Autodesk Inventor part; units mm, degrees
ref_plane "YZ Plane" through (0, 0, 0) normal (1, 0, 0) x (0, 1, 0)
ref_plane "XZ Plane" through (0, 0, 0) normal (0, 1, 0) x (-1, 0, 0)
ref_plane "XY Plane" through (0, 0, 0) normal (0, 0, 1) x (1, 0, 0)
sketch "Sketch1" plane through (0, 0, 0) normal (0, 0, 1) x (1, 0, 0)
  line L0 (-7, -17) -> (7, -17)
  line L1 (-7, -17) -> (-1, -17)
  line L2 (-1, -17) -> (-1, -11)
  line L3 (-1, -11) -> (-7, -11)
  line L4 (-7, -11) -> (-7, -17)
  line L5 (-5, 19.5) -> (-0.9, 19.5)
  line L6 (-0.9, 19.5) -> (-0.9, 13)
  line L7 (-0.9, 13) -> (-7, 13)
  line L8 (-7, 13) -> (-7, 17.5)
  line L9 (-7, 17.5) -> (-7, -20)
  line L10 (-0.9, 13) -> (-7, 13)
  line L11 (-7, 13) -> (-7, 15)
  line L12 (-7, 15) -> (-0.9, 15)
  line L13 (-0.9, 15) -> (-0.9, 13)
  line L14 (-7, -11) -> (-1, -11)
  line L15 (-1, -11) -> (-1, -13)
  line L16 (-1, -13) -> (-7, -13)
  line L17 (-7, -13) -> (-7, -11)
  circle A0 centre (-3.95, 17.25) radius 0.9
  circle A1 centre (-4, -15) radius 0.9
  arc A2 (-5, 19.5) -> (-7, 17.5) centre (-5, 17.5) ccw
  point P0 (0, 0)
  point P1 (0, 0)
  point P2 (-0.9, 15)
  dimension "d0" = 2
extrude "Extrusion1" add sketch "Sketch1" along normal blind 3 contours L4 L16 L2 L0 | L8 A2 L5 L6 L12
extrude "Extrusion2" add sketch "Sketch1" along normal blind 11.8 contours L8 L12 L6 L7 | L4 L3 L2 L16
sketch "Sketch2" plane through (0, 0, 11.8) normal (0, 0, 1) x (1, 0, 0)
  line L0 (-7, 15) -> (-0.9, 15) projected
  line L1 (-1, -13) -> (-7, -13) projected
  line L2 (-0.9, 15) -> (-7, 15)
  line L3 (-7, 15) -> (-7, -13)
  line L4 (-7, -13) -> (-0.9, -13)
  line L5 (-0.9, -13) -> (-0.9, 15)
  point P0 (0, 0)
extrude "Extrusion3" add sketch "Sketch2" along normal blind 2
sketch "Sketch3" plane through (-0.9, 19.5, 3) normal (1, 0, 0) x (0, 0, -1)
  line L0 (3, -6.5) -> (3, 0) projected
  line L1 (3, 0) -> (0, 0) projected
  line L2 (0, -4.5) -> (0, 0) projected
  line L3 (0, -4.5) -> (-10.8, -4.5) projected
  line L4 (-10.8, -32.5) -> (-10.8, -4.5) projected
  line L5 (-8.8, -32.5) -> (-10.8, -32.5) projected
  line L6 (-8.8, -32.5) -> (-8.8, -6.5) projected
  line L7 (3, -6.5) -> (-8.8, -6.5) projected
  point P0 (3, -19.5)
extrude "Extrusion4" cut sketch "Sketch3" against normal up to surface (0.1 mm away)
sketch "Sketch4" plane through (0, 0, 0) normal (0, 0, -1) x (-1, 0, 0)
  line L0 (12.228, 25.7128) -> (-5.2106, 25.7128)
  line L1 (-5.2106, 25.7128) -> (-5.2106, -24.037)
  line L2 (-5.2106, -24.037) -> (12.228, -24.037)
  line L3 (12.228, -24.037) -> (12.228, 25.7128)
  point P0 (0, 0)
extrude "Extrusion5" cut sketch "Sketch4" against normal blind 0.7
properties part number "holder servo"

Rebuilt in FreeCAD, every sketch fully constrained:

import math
import FreeCAD as App
import Part
import Sketcher
Q = App.Units.Quantity

doc = App.newDocument("Part")
params = doc.addObject("Spreadsheet::Sheet", "Params")
for row, (alias, value) in enumerate([
    ("sketch1_radius", "2 mm"),
    ("sketch1_diameter", "1.8 mm"),
    ("sketch1_width", "6 mm"),
    ("sketch1_width2", "6.1 mm"),
    ("sketch1_height", "2.5 mm"),
    ("pad1_length", "3 mm"),
    ("sketch2_height", "2 mm"),
    ("sketch2_width", "6 mm"),
    ("sketch2_width2", "6.1 mm"),
    ("pad2_length", "11.8 mm"),
    ("sketch3_height", "28 mm"),
    ("sketch3_width", "6.1 mm"),
    ("pad3_length", "2 mm"),
    ("sketch4_width", "28 mm"),
    ("sketch4_width2", "26 mm"),
    ("sketch4_height", "3 mm"),
    ("sketch4_height2", "2 mm"),
    ("sketch4_width3", "6.5 mm"),
    ("pocket1_length", "0.1 mm"),
    ("pocket2_length", "0.7 mm"),
], start=1):
    params.set(f"A{row}", alias)
    params.set(f"B{row}", "=" + value)
    params.setAlias(f"B{row}", alias)

body = doc.addObject("PartDesign::Body", "Body")
body.AllowCompound = True

sketch1 = body.newObject("Sketcher::SketchObject", "Sketch")
sketch1.AttachmentSupport = (doc.getObject("XY_Plane"), [""])
sketch1.MapMode = "FlatFace"
sketch1.addGeometry(Part.LineSegment(App.Vector(-7, -13, 0), App.Vector(-7, -17, 0)), False)
sketch1.addGeometry(Part.LineSegment(App.Vector(-7, -17, 0), App.Vector(-1, -17, 0)), False)
sketch1.addGeometry(Part.LineSegment(App.Vector(-1, -17, 0), App.Vector(-1, -13, 0)), False)
sketch1.addGeometry(Part.LineSegment(App.Vector(-1, -13, 0), App.Vector(-7, -13, 0)), False)
sketch1.addGeometry(Part.Circle(App.Vector(-4, -15, 0), App.Vector(0, 0, 1), 0.9), False)
sketch1.addGeometry(Part.LineSegment(App.Vector(-7, 17.5, 0), App.Vector(-7, 15, 0)), False)
sketch1.addGeometry(Part.LineSegment(App.Vector(-7, 15, 0), App.Vector(-0.9, 15, 0)), False)
sketch1.addGeometry(Part.LineSegment(App.Vector(-0.9, 15, 0), App.Vector(-0.9, 19.5, 0)), False)
sketch1.addGeometry(Part.LineSegment(App.Vector(-0.9, 19.5, 0), App.Vector(-5, 19.5, 0)), False)
sketch1.addGeometry(Part.ArcOfCircle(Part.Circle(App.Vector(-5, 17.5, 0), App.Vector(0, 0, 1), 2), math.radians(90), math.radians(180)), False)
sketch1.addGeometry(Part.Circle(App.Vector(-3.95, 17.25, 0), App.Vector(0, 0, 1), 0.9), False)
sketch1.addConstraint(Sketcher.Constraint("Coincident", 0, 2, 1, 1))
sketch1.addConstraint(Sketcher.Constraint("Coincident", 1, 2, 2, 1))
sketch1.addConstraint(Sketcher.Constraint("Coincident", 2, 2, 3, 1))
sketch1.addConstraint(Sketcher.Constraint("Coincident", 3, 2, 0, 1))
sketch1.addConstraint(Sketcher.Constraint("Coincident", 5, 2, 6, 1))
sketch1.addConstraint(Sketcher.Constraint("Coincident", 6, 2, 7, 1))
sketch1.addConstraint(Sketcher.Constraint("Coincident", 7, 2, 8, 1))
sketch1.addConstraint(Sketcher.Constraint("Tangent", 8, 2, 9, 1))
sketch1.addConstraint(Sketcher.Constraint("Tangent", 9, 2, 5, 1))
sketch1.addConstraint(Sketcher.Constraint("Vertical", 0))
sketch1.addConstraint(Sketcher.Constraint("Horizontal", 1))
sketch1.addConstraint(Sketcher.Constraint("Vertical", 2))
sketch1.addConstraint(Sketcher.Constraint("Horizontal", 3))
sketch1.addConstraint(Sketcher.Constraint("Vertical", 5))
sketch1.addConstraint(Sketcher.Constraint("Horizontal", 6))
sketch1.addConstraint(Sketcher.Constraint("Vertical", 7))
sketch1.addConstraint(Sketcher.Constraint("Horizontal", 8))
sketch1.addConstraint(Sketcher.Constraint("Equal", 4, 10))
sketch1.addConstraint(Sketcher.Constraint("Vertical", 3, 2, 5, 2))
sketch1.addConstraint(Sketcher.Constraint("Radius", 9, Q("2 mm")))
sketch1.addConstraint(Sketcher.Constraint("DistanceY", 0, 2, 4, 3, Q("2 mm")))
sketch1.addConstraint(Sketcher.Constraint("DistanceY", 4, 3, 2, 2, Q("2 mm")))
sketch1.addConstraint(Sketcher.Constraint("Diameter", 4, Q("1.8 mm")))
sketch1.addConstraint(Sketcher.Constraint("DistanceX", 1, 1, 1, 2, Q("6 mm")))
sketch1.addConstraint(Sketcher.Constraint("DistanceX", 6, 1, 6, 2, Q("6.1 mm")))
sketch1.addConstraint(Sketcher.Constraint("DistanceY", 5, 2, 5, 1, Q("2.5 mm")))
sketch1.addConstraint(Sketcher.Constraint("DistanceX", 4, 3, -1, 1, Q("4 mm")))
sketch1.addConstraint(Sketcher.Constraint("DistanceY", 4, 3, -1, 1, Q("15 mm")))
sketch1.addConstraint(Sketcher.Constraint("DistanceX", 9, 3, -1, 1, Q("5 mm")))
sketch1.addConstraint(Sketcher.Constraint("DistanceY", -1, 1, 5, 2, Q("15 mm")))
sketch1.addConstraint(Sketcher.Constraint("DistanceX", 10, 3, -1, 1, Q("3.95 mm")))
sketch1.addConstraint(Sketcher.Constraint("DistanceY", -1, 1, 10, 3, Q("17.25 mm")))
sketch1.setExpression("Constraints[19]", "Params.sketch1_radius")
sketch1.setExpression("Constraints[22]", "Params.sketch1_diameter")
sketch1.setExpression("Constraints[23]", "Params.sketch1_width")
sketch1.setExpression("Constraints[24]", "Params.sketch1_width2")
sketch1.setExpression("Constraints[25]", "Params.sketch1_height")
pad1 = body.newObject("PartDesign::Pad", "Pad")
pad1.Profile = sketch1
pad1.setExpression("Length", "Params.pad1_length")

sketch2 = body.newObject("Sketcher::SketchObject", "Sketch001")
sketch2.AttachmentSupport = (doc.getObject("XY_Plane"), [""])
sketch2.MapMode = "FlatFace"
sketch2.addGeometry(Part.LineSegment(App.Vector(-7, 15, 0), App.Vector(-7, 13, 0)), False)
sketch2.addGeometry(Part.LineSegment(App.Vector(-7, 13, 0), App.Vector(-0.9, 13, 0)), False)
sketch2.addGeometry(Part.LineSegment(App.Vector(-0.9, 13, 0), App.Vector(-0.9, 15, 0)), False)
sketch2.addGeometry(Part.LineSegment(App.Vector(-0.9, 15, 0), App.Vector(-7, 15, 0)), False)
sketch2.addGeometry(Part.LineSegment(App.Vector(-7, -11, 0), App.Vector(-7, -13, 0)), False)
sketch2.addGeometry(Part.LineSegment(App.Vector(-7, -13, 0), App.Vector(-1, -13, 0)), False)
sketch2.addGeometry(Part.LineSegment(App.Vector(-1, -13, 0), App.Vector(-1, -11, 0)), False)
sketch2.addGeometry(Part.LineSegment(App.Vector(-1, -11, 0), App.Vector(-7, -11, 0)), False)
sketch2.addConstraint(Sketcher.Constraint("Coincident", 0, 2, 1, 1))
sketch2.addConstraint(Sketcher.Constraint("Coincident", 1, 2, 2, 1))
sketch2.addConstraint(Sketcher.Constraint("Coincident", 2, 2, 3, 1))
sketch2.addConstraint(Sketcher.Constraint("Coincident", 3, 2, 0, 1))
sketch2.addConstraint(Sketcher.Constraint("Coincident", 4, 2, 5, 1))
sketch2.addConstraint(Sketcher.Constraint("Coincident", 5, 2, 6, 1))
sketch2.addConstraint(Sketcher.Constraint("Coincident", 6, 2, 7, 1))
sketch2.addConstraint(Sketcher.Constraint("Coincident", 7, 2, 4, 1))
sketch2.addConstraint(Sketcher.Constraint("Vertical", 0))
sketch2.addConstraint(Sketcher.Constraint("Horizontal", 1))
sketch2.addConstraint(Sketcher.Constraint("Vertical", 2))
sketch2.addConstraint(Sketcher.Constraint("Horizontal", 3))
sketch2.addConstraint(Sketcher.Constraint("Vertical", 4))
sketch2.addConstraint(Sketcher.Constraint("Horizontal", 5))
sketch2.addConstraint(Sketcher.Constraint("Vertical", 6))
sketch2.addConstraint(Sketcher.Constraint("Horizontal", 7))
sketch2.addConstraint(Sketcher.Constraint("Symmetric", 0, 2, 4, 2, -1))
sketch2.addConstraint(Sketcher.Constraint("Equal", 2, 4))
sketch2.addConstraint(Sketcher.Constraint("DistanceY", 0, 2, 0, 1, Q("2 mm")))
sketch2.addConstraint(Sketcher.Constraint("DistanceX", 5, 1, 5, 2, Q("6 mm")))
sketch2.addConstraint(Sketcher.Constraint("DistanceX", 1, 1, 1, 2, Q("6.1 mm")))
sketch2.addConstraint(Sketcher.Constraint("DistanceX", 0, 2, -1, 1, Q("7 mm")))
sketch2.addConstraint(Sketcher.Constraint("DistanceY", -1, 1, 0, 2, Q("13 mm")))
sketch2.setExpression("Constraints[18]", "Params.sketch2_height")
sketch2.setExpression("Constraints[19]", "Params.sketch2_width")
sketch2.setExpression("Constraints[20]", "Params.sketch2_width2")
pad2 = body.newObject("PartDesign::Pad", "Pad001")
pad2.Profile = sketch2
pad2.setExpression("Length", "Params.pad2_length")

sketch3 = body.newObject("Sketcher::SketchObject", "Sketch002")
sketch3.AttachmentSupport = (doc.getObject("XY_Plane"), [""])
sketch3.MapMode = "FlatFace"
sketch3.AttachmentOffset = App.Placement(App.Vector(0, 0, 11.8), App.Rotation())
sketch3.addGeometry(Part.LineSegment(App.Vector(-0.9, 15, 0), App.Vector(-7, 15, 0)), False)
sketch3.addGeometry(Part.LineSegment(App.Vector(-7, 15, 0), App.Vector(-7, -13, 0)), False)
sketch3.addGeometry(Part.LineSegment(App.Vector(-7, -13, 0), App.Vector(-0.9, -13, 0)), False)
sketch3.addGeometry(Part.LineSegment(App.Vector(-0.9, -13, 0), App.Vector(-0.9, 15, 0)), False)
sketch3.addConstraint(Sketcher.Constraint("Coincident", 0, 2, 1, 1))
sketch3.addConstraint(Sketcher.Constraint("Coincident", 1, 2, 2, 1))
sketch3.addConstraint(Sketcher.Constraint("Coincident", 2, 2, 3, 1))
sketch3.addConstraint(Sketcher.Constraint("Coincident", 3, 2, 0, 1))
sketch3.addConstraint(Sketcher.Constraint("Horizontal", 0))
sketch3.addConstraint(Sketcher.Constraint("Vertical", 1))
sketch3.addConstraint(Sketcher.Constraint("Horizontal", 2))
sketch3.addConstraint(Sketcher.Constraint("Vertical", 3))
sketch3.addConstraint(Sketcher.Constraint("DistanceY", 1, 2, 1, 1, Q("28 mm")))
sketch3.addConstraint(Sketcher.Constraint("DistanceX", 0, 2, 0, 1, Q("6.1 mm")))
sketch3.addConstraint(Sketcher.Constraint("DistanceX", 0, 2, -1, 1, Q("7 mm")))
sketch3.addConstraint(Sketcher.Constraint("DistanceY", -1, 1, 0, 2, Q("15 mm")))
sketch3.setExpression("Constraints[8]", "Params.sketch3_height")
sketch3.setExpression("Constraints[9]", "Params.sketch3_width")
pad3 = body.newObject("PartDesign::Pad", "Pad002")
pad3.Profile = sketch3
pad3.setExpression("Length", "Params.pad3_length")

sketch4 = body.newObject("Sketcher::SketchObject", "Sketch003")
sketch4.AttachmentSupport = (doc.getObject("YZ_Plane"), [""])
sketch4.MapMode = "FlatFace"
sketch4.AttachmentOffset = App.Placement(App.Vector(0, 0, -0.9), App.Rotation())
sketch4.addGeometry(Part.LineSegment(App.Vector(13, 11.8, 0), App.Vector(13, 0, 0)), False)
sketch4.addGeometry(Part.LineSegment(App.Vector(13, 0, 0), App.Vector(19.5, 0, 0)), False)
sketch4.addGeometry(Part.LineSegment(App.Vector(19.5, 0, 0), App.Vector(19.5, 3, 0)), False)
sketch4.addGeometry(Part.LineSegment(App.Vector(19.5, 3, 0), App.Vector(15, 3, 0)), False)
sketch4.addGeometry(Part.LineSegment(App.Vector(15, 3, 0), App.Vector(15, 13.8, 0)), False)
sketch4.addGeometry(Part.LineSegment(App.Vector(15, 13.8, 0), App.Vector(-13, 13.8, 0)), False)
sketch4.addGeometry(Part.LineSegment(App.Vector(-13, 13.8, 0), App.Vector(-13, 11.8, 0)), False)
sketch4.addGeometry(Part.LineSegment(App.Vector(-13, 11.8, 0), App.Vector(13, 11.8, 0)), False)
sketch4.addConstraint(Sketcher.Constraint("Coincident", 0, 2, 1, 1))
sketch4.addConstraint(Sketcher.Constraint("Coincident", 1, 2, 2, 1))
sketch4.addConstraint(Sketcher.Constraint("Coincident", 2, 2, 3, 1))
sketch4.addConstraint(Sketcher.Constraint("Coincident", 3, 2, 4, 1))
sketch4.addConstraint(Sketcher.Constraint("Coincident", 4, 2, 5, 1))
sketch4.addConstraint(Sketcher.Constraint("Coincident", 5, 2, 6, 1))
sketch4.addConstraint(Sketcher.Constraint("Coincident", 6, 2, 7, 1))
sketch4.addConstraint(Sketcher.Constraint("Coincident", 7, 2, 0, 1))
sketch4.addConstraint(Sketcher.Constraint("Vertical", 0))
sketch4.addConstraint(Sketcher.Constraint("Horizontal", 1))
sketch4.addConstraint(Sketcher.Constraint("Vertical", 2))
sketch4.addConstraint(Sketcher.Constraint("Horizontal", 3))
sketch4.addConstraint(Sketcher.Constraint("Vertical", 4))
sketch4.addConstraint(Sketcher.Constraint("Horizontal", 5))
sketch4.addConstraint(Sketcher.Constraint("Vertical", 6))
sketch4.addConstraint(Sketcher.Constraint("Horizontal", 7))
sketch4.addConstraint(Sketcher.Constraint("PointOnObject", 0, 2, -1))
sketch4.addConstraint(Sketcher.Constraint("DistanceX", 5, 2, 5, 1, Q("28 mm")))
sketch4.addConstraint(Sketcher.Constraint("DistanceX", 7, 1, 7, 2, Q("26 mm")))
sketch4.addConstraint(Sketcher.Constraint("DistanceY", 2, 1, 2, 2, Q("3 mm")))
sketch4.addConstraint(Sketcher.Constraint("DistanceY", 6, 2, 6, 1, Q("2 mm")))
sketch4.addConstraint(Sketcher.Constraint("DistanceX", 1, 1, 1, 2, Q("6.5 mm")))
sketch4.addConstraint(Sketcher.Constraint("DistanceY", 0, 2, 0, 1, Q("11.8 mm")))
sketch4.addConstraint(Sketcher.Constraint("DistanceX", -1, 1, 0, 2, Q("13 mm")))
sketch4.setExpression("Constraints[17]", "Params.sketch4_width")
sketch4.setExpression("Constraints[18]", "Params.sketch4_width2")
sketch4.setExpression("Constraints[19]", "Params.sketch4_height")
sketch4.setExpression("Constraints[20]", "Params.sketch4_height2")
sketch4.setExpression("Constraints[21]", "Params.sketch4_width3")
pocket1 = body.newObject("PartDesign::Pocket", "Pocket")
pocket1.Profile = sketch4
pocket1.setExpression("Length", "Params.pocket1_length")

sketch5 = body.newObject("Sketcher::SketchObject", "Sketch004")
sketch5.AttachmentSupport = (doc.getObject("XY_Plane"), [""])
sketch5.MapMode = "FlatFace"
sketch5.addGeometry(Part.LineSegment(App.Vector(-12.228, -24.037, 0), App.Vector(-12.228, 25.7128, 0)), False)
sketch5.addGeometry(Part.LineSegment(App.Vector(-12.228, 25.7128, 0), App.Vector(5.2106, 25.7128, 0)), False)
sketch5.addGeometry(Part.LineSegment(App.Vector(5.2106, 25.7128, 0), App.Vector(5.2106, -24.037, 0)), False)
sketch5.addGeometry(Part.LineSegment(App.Vector(5.2106, -24.037, 0), App.Vector(-12.228, -24.037, 0)), False)
sketch5.addConstraint(Sketcher.Constraint("Coincident", 0, 2, 1, 1))
sketch5.addConstraint(Sketcher.Constraint("Coincident", 1, 2, 2, 1))
sketch5.addConstraint(Sketcher.Constraint("Coincident", 2, 2, 3, 1))
sketch5.addConstraint(Sketcher.Constraint("Coincident", 3, 2, 0, 1))
sketch5.addConstraint(Sketcher.Constraint("Vertical", 0))
sketch5.addConstraint(Sketcher.Constraint("Horizontal", 1))
sketch5.addConstraint(Sketcher.Constraint("Vertical", 2))
sketch5.addConstraint(Sketcher.Constraint("Horizontal", 3))
sketch5.addConstraint(Sketcher.Constraint("DistanceX", 1, 1, 1, 2, Q("17.4386 mm")))
sketch5.addConstraint(Sketcher.Constraint("DistanceY", 0, 1, 0, 2, Q("49.7498 mm")))
sketch5.addConstraint(Sketcher.Constraint("DistanceX", 0, 2, -1, 1, Q("12.228 mm")))
sketch5.addConstraint(Sketcher.Constraint("DistanceY", 2, 2, -1, 1, Q("24.037 mm")))
pocket2 = body.newObject("PartDesign::Pocket", "Pocket001")
pocket2.Profile = sketch5
pocket2.setExpression("Length", "Params.pocket2_length")
pocket2.Reversed = True

doc.recompute()
